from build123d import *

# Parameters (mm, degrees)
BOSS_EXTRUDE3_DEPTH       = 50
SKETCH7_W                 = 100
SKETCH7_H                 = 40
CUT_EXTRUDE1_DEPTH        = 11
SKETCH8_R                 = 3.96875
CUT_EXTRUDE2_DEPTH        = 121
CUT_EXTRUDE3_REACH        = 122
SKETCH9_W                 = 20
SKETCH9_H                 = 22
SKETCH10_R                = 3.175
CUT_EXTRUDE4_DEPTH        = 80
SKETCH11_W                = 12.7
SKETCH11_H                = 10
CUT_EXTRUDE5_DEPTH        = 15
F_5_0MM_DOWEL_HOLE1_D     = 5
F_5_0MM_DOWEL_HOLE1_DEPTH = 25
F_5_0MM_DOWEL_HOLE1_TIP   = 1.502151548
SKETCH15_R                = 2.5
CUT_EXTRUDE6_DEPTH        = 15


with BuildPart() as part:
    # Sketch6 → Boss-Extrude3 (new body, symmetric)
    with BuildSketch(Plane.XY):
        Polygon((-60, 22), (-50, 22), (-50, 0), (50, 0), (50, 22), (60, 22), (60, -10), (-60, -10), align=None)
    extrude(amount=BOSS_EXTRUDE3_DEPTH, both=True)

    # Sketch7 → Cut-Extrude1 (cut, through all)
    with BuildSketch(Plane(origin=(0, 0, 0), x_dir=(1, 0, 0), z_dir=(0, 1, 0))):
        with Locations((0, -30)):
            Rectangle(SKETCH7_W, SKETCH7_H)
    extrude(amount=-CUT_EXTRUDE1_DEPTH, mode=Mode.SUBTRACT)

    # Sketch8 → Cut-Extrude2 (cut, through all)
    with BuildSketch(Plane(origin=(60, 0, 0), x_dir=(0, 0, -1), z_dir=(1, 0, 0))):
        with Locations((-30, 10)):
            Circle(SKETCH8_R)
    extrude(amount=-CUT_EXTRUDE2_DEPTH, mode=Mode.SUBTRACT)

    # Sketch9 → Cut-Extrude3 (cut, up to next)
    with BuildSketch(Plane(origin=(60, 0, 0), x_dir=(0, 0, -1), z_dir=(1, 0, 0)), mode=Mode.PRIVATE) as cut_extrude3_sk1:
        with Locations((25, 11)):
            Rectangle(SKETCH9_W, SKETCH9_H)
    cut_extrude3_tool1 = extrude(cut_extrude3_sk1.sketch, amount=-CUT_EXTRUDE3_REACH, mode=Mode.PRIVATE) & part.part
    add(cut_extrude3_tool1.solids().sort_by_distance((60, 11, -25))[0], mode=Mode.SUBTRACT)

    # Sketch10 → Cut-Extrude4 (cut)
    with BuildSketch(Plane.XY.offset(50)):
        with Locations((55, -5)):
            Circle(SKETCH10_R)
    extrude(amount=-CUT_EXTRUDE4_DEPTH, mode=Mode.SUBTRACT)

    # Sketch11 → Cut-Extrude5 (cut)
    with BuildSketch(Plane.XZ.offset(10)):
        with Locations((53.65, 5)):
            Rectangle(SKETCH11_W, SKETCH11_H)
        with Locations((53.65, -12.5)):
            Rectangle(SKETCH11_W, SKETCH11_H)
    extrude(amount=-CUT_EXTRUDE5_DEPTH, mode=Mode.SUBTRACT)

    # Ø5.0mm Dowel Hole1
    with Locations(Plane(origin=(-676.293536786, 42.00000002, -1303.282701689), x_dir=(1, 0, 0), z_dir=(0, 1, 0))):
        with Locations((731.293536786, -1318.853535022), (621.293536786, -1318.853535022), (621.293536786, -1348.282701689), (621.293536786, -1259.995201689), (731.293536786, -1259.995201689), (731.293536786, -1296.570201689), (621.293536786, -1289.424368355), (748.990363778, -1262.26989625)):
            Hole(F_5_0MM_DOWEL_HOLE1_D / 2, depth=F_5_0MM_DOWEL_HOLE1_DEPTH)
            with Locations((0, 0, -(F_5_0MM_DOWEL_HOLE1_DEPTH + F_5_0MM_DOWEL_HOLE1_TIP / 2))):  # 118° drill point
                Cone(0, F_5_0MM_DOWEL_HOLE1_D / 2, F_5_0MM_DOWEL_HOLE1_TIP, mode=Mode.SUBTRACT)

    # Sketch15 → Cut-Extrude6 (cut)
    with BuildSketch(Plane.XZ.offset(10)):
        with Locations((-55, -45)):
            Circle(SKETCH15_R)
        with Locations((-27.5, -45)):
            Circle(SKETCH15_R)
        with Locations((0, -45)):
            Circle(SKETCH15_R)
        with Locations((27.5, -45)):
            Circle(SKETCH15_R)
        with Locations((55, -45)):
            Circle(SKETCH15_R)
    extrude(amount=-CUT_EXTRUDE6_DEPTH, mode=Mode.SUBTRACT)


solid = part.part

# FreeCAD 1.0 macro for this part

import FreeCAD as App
import Part
import Sketcher
from FreeCAD import Vector

doc = App.newDocument("Part")
params = doc.addObject("Spreadsheet::Sheet", "Params")
for row, (alias, value) in enumerate([
    ("sketch1_width", "10 mm"),
    ("sketch1_width2", "120 mm"),
    ("sketch1_height", "32 mm"),
    ("sketch1_height2", "22 mm"),
    ("pad1_length", "100 mm"),
    ("sketch2_width", "100 mm"),
    ("sketch2_height", "40 mm"),
    ("sketch4_width", "22 mm"),
    ("sketch4_height", "20 mm"),
    ("sketch5_diameter", "6.35 mm"),
    ("pocket4_length", "80 mm"),
    ("sketch6_height", "10 mm"),
    ("sketch6_width", "12.7 mm"),
    ("pocket5_length", "15 mm"),
    ("sketch7_diameter", "5 mm"),
    ("hole_diameter", "5 mm"),
    ("hole_depth", "25 mm"),
    ("sketch8_diameter", "5 mm"),
    ("pocket6_length", "15 mm"),
], start=1):
    params.set(f"A{row}", alias)
    params.set(f"B{row}", "=" + value)
    params.setAlias(f"B{row}", alias)

body = doc.addObject("PartDesign::Body", "Body")

sketch1 = doc.addObject("Sketcher::SketchObject", "Sketch")
body.addObject(sketch1)
sketch1.AttachmentSupport = (doc.XY_Plane, [""])
sketch1.MapMode = "FlatFace"
sketch1.addGeometry(Part.LineSegment(Vector(-50, 22, 0), Vector(-60, 22, 0)), False)
sketch1.addGeometry(Part.LineSegment(Vector(-60, 22, 0), Vector(-60, -10, 0)), False)
sketch1.addGeometry(Part.LineSegment(Vector(-60, -10, 0), Vector(60, -10, 0)), False)
sketch1.addGeometry(Part.LineSegment(Vector(60, -10, 0), Vector(60, 22, 0)), False)
sketch1.addGeometry(Part.LineSegment(Vector(60, 22, 0), Vector(50, 22, 0)), False)
sketch1.addGeometry(Part.LineSegment(Vector(50, 22, 0), Vector(50, 0, 0)), False)
sketch1.addGeometry(Part.LineSegment(Vector(50, 0, 0), Vector(-50, 0, 0)), False)
sketch1.addGeometry(Part.LineSegment(Vector(-50, 0, 0), Vector(-50, 22, 0)), False)
sketch1.addConstraint(Sketcher.Constraint("Coincident", 0, 2, 1, 1))
sketch1.addConstraint(Sketcher.Constraint("Coincident", 1, 2, 2, 1))
sketch1.addConstraint(Sketcher.Constraint("Coincident", 2, 2, 3, 1))
sketch1.addConstraint(Sketcher.Constraint("Coincident", 3, 2, 4, 1))
sketch1.addConstraint(Sketcher.Constraint("Coincident", 4, 2, 5, 1))
sketch1.addConstraint(Sketcher.Constraint("Coincident", 5, 2, 6, 1))
sketch1.addConstraint(Sketcher.Constraint("Coincident", 6, 2, 7, 1))
sketch1.addConstraint(Sketcher.Constraint("Coincident", 7, 2, 0, 1))
sketch1.addConstraint(Sketcher.Constraint("Horizontal", 0))
sketch1.addConstraint(Sketcher.Constraint("Vertical", 1))
sketch1.addConstraint(Sketcher.Constraint("Horizontal", 2))
sketch1.addConstraint(Sketcher.Constraint("Vertical", 3))
sketch1.addConstraint(Sketcher.Constraint("Horizontal", 4))
sketch1.addConstraint(Sketcher.Constraint("Vertical", 5))
sketch1.addConstraint(Sketcher.Constraint("Horizontal", 6))
sketch1.addConstraint(Sketcher.Constraint("Vertical", 7))
sketch1.addConstraint(Sketcher.Constraint("Symmetric", 5, 2, 6, 2, -1, 1))
sketch1.addConstraint(Sketcher.Constraint("Symmetric", 0, 2, 3, 2, -2))
sketch1.addConstraint(Sketcher.Constraint("DistanceX", 0, 2, 0, 1, 10.0))
sketch1.addConstraint(Sketcher.Constraint("DistanceX", 2, 1, 2, 2, 120.0))
sketch1.addConstraint(Sketcher.Constraint("DistanceY", 1, 2, 1, 1, 32.0))
sketch1.addConstraint(Sketcher.Constraint("DistanceY", 5, 2, 5, 1, 22.0))
sketch1.setExpression("Constraints[18]", "Params.sketch1_width")
sketch1.setExpression("Constraints[19]", "Params.sketch1_width2")
sketch1.setExpression("Constraints[20]", "Params.sketch1_height")
sketch1.setExpression("Constraints[21]", "Params.sketch1_height2")
pad1 = doc.addObject("PartDesign::Pad", "Pad")
body.addObject(pad1)
pad1.Profile = sketch1
pad1.setExpression("Length", "Params.pad1_length")
pad1.Midplane = True

sketch2 = doc.addObject("Sketcher::SketchObject", "Sketch001")
body.addObject(sketch2)
sketch2.AttachmentSupport = (doc.XZ_Plane, [""])
sketch2.MapMode = "FlatFace"
sketch2.addGeometry(Part.LineSegment(Vector(-50, 10, 0), Vector(-50, 50, 0)), False)
sketch2.addGeometry(Part.LineSegment(Vector(-50, 50, 0), Vector(50, 50, 0)), False)
sketch2.addGeometry(Part.LineSegment(Vector(50, 50, 0), Vector(50, 10, 0)), False)
sketch2.addGeometry(Part.LineSegment(Vector(50, 10, 0), Vector(-50, 10, 0)), False)
sketch2.addConstraint(Sketcher.Constraint("Coincident", 0, 2, 1, 1))
sketch2.addConstraint(Sketcher.Constraint("Coincident", 1, 2, 2, 1))
sketch2.addConstraint(Sketcher.Constraint("Coincident", 2, 2, 3, 1))
sketch2.addConstraint(Sketcher.Constraint("Coincident", 3, 2, 0, 1))
sketch2.addConstraint(Sketcher.Constraint("Vertical", 0))
sketch2.addConstraint(Sketcher.Constraint("Horizontal", 1))
sketch2.addConstraint(Sketcher.Constraint("Vertical", 2))
sketch2.addConstraint(Sketcher.Constraint("Horizontal", 3))
sketch2.addConstraint(Sketcher.Constraint("DistanceX", 1, 1, 1, 2, 100.0))
sketch2.addConstraint(Sketcher.Constraint("DistanceY", 0, 1, 0, 2, 40.0))
sketch2.addConstraint(Sketcher.Constraint("DistanceX", 0, 2, -1, 1, 50.0))
sketch2.addConstraint(Sketcher.Constraint("DistanceY", -1, 1, 0, 2, 50.0))
sketch2.setExpression("Constraints[8]", "Params.sketch2_width")
sketch2.setExpression("Constraints[9]", "Params.sketch2_height")
pocket1 = doc.addObject("PartDesign::Pocket", "Pocket")
body.addObject(pocket1)
pocket1.Profile = sketch2
pocket1.Type = "ThroughAll"
pocket1.Reversed = True

sketch3 = doc.addObject("Sketcher::SketchObject", "Sketch002")
body.addObject(sketch3)
sketch3.AttachmentSupport = (doc.YZ_Plane, [""])
sketch3.MapMode = "FlatFace"
sketch3.AttachmentOffset = App.Placement(Vector(0, 0, 60), App.Rotation())
sketch3.addGeometry(Part.Circle(Vector(10, 30, 0), Vector(0, 0, 1), 4), False)
sketch3.addConstraint(Sketcher.Constraint("DistanceX", -1, 1, 0, 3, 10.0))
sketch3.addConstraint(Sketcher.Constraint("DistanceY", -1, 1, 0, 3, 30.0))
sketch3.addConstraint(Sketcher.Constraint("Diameter", 0, 7.9375))
pocket2 = doc.addObject("PartDesign::Pocket", "Pocket001")
body.addObject(pocket2)
pocket2.Profile = sketch3
pocket2.Type = "ThroughAll"

sketch4 = doc.addObject("Sketcher::SketchObject", "Sketch003")
body.addObject(sketch4)
sketch4.AttachmentSupport = (doc.YZ_Plane, [""])
sketch4.MapMode = "FlatFace"
sketch4.AttachmentOffset = App.Placement(Vector(0, 0, 60), App.Rotation())
sketch4.addGeometry(Part.LineSegment(Vector(22, -15, 0), Vector(0, -15, 0)), False)
sketch4.addGeometry(Part.LineSegment(Vector(0, -15, 0), Vector(0, -35, 0)), False)
sketch4.addGeometry(Part.LineSegment(Vector(0, -35, 0), Vector(22, -35, 0)), False)
sketch4.addGeometry(Part.LineSegment(Vector(22, -35, 0), Vector(22, -15, 0)), False)
sketch4.addConstraint(Sketcher.Constraint("Coincident", 0, 2, 1, 1))
sketch4.addConstraint(Sketcher.Constraint("Coincident", 1, 2, 2, 1))
sketch4.addConstraint(Sketcher.Constraint("Coincident", 2, 2, 3, 1))
sketch4.addConstraint(Sketcher.Constraint("Coincident", 3, 2, 0, 1))
sketch4.addConstraint(Sketcher.Constraint("Horizontal", 0))
sketch4.addConstraint(Sketcher.Constraint("Vertical", 1))
sketch4.addConstraint(Sketcher.Constraint("Horizontal", 2))
sketch4.addConstraint(Sketcher.Constraint("Vertical", 3))
sketch4.addConstraint(Sketcher.Constraint("PointOnObject", 0, 2, -2))
sketch4.addConstraint(Sketcher.Constraint("DistanceX", 0, 2, 0, 1, 22.0))
sketch4.addConstraint(Sketcher.Constraint("DistanceY", 1, 2, 1, 1, 20.0))
sketch4.addConstraint(Sketcher.Constraint("DistanceY", 0, 2, -1, 1, 15.0))
sketch4.setExpression("Constraints[9]", "Params.sketch4_width")
sketch4.setExpression("Constraints[10]", "Params.sketch4_height")
pocket3 = doc.addObject("PartDesign::Pocket", "Pocket002")
body.addObject(pocket3)
pocket3.Profile = sketch4
pocket3.Type = "UpToFirst"

sketch5 = doc.addObject("Sketcher::SketchObject", "Sketch004")
body.addObject(sketch5)
sketch5.AttachmentSupport = (doc.XY_Plane, [""])
sketch5.MapMode = "FlatFace"
sketch5.AttachmentOffset = App.Placement(Vector(0, 0, 50), App.Rotation())
sketch5.addGeometry(Part.Circle(Vector(55, -5, 0), Vector(0, 0, 1), 3.2), False)
sketch5.addConstraint(Sketcher.Constraint("Diameter", 0, 6.35))
sketch5.addConstraint(Sketcher.Constraint("DistanceX", -1, 1, 0, 3, 55.0))
sketch5.addConstraint(Sketcher.Constraint("DistanceY", 0, 3, -1, 1, 5.0))
sketch5.setExpression("Constraints[0]", "Params.sketch5_diameter")
pocket4 = doc.addObject("PartDesign::Pocket", "Pocket003")
body.addObject(pocket4)
pocket4.Profile = sketch5
pocket4.setExpression("Length", "Params.pocket4_length")

sketch6 = doc.addObject("Sketcher::SketchObject", "Sketch005")
body.addObject(sketch6)
sketch6.AttachmentSupport = (doc.XZ_Plane, [""])
sketch6.MapMode = "FlatFace"
sketch6.AttachmentOffset = App.Placement(Vector(0, 0, 10), App.Rotation())
sketch6.addGeometry(Part.LineSegment(Vector(47, 10, 0), Vector(47, 0, 0)), False)
sketch6.addGeometry(Part.LineSegment(Vector(47, 0, 0), Vector(60, 0, 0)), False)
sketch6.addGeometry(Part.LineSegment(Vector(60, 0, 0), Vector(60, 10, 0)), False)
sketch6.addGeometry(Part.LineSegment(Vector(60, 10, 0), Vector(47, 10, 0)), False)
sketch6.addGeometry(Part.LineSegment(Vector(47, -8, 0), Vector(47, -18, 0)), False)
sketch6.addGeometry(Part.LineSegment(Vector(47, -18, 0), Vector(60, -18, 0)), False)
sketch6.addGeometry(Part.LineSegment(Vector(60, -18, 0), Vector(60, -8, 0)), False)
sketch6.addGeometry(Part.LineSegment(Vector(60, -8, 0), Vector(47, -8, 0)), False)
sketch6.addConstraint(Sketcher.Constraint("Coincident", 0, 2, 1, 1))
sketch6.addConstraint(Sketcher.Constraint("Coincident", 1, 2, 2, 1))
sketch6.addConstraint(Sketcher.Constraint("Coincident", 2, 2, 3, 1))
sketch6.addConstraint(Sketcher.Constraint("Coincident", 3, 2, 0, 1))
sketch6.addConstraint(Sketcher.Constraint("Coincident", 4, 2, 5, 1))
sketch6.addConstraint(Sketcher.Constraint("Coincident", 5, 2, 6, 1))
sketch6.addConstraint(Sketcher.Constraint("Coincident", 6, 2, 7, 1))
sketch6.addConstraint(Sketcher.Constraint("Coincident", 7, 2, 4, 1))
sketch6.addConstraint(Sketcher.Constraint("Vertical", 0))
sketch6.addConstraint(Sketcher.Constraint("Horizontal", 1))
sketch6.addConstraint(Sketcher.Constraint("Vertical", 2))
sketch6.addConstraint(Sketcher.Constraint("Horizontal", 3))
sketch6.addConstraint(Sketcher.Constraint("Vertical", 4))
sketch6.addConstraint(Sketcher.Constraint("Horizontal", 5))
sketch6.addConstraint(Sketcher.Constraint("Vertical", 6))
sketch6.addConstraint(Sketcher.Constraint("Horizontal", 7))
sketch6.addConstraint(Sketcher.Constraint("PointOnObject", 0, 2, -1))
sketch6.addConstraint(Sketcher.Constraint("Vertical", 3, 2, 4, 2))
sketch6.addConstraint(Sketcher.Constraint("Vertical", 2, 2, 5, 2))
sketch6.addConstraint(Sketcher.Constraint("Equal", 2, 4))
sketch6.addConstraint(Sketcher.Constraint("DistanceY", 0, 2, 0, 1, 10.0))
sketch6.addConstraint(Sketcher.Constraint("DistanceX", 1, 1, 1, 2, 12.7))
sketch6.addConstraint(Sketcher.Constraint("DistanceX", -1, 1, 1, 2, 60.0))
sketch6.addConstraint(Sketcher.Constraint("DistanceY", 4, 2, -1, 1, 17.5))
sketch6.setExpression("Constraints[20]", "Params.sketch6_height")
sketch6.setExpression("Constraints[21]", "Params.sketch6_width")
pocket5 = doc.addObject("PartDesign::Pocket", "Pocket004")
body.addObject(pocket5)
pocket5.Profile = sketch6
pocket5.setExpression("Length", "Params.pocket5_length")

sketch7 = doc.addObject("Sketcher::SketchObject", "Sketch006")
body.addObject(sketch7)
sketch7.AttachmentSupport = (doc.XZ_Plane, [""])
sketch7.MapMode = "FlatFace"
sketch7.AttachmentOffset = App.Placement(Vector(0, 0, -42), App.Rotation())
sketch7.addGeometry(Part.Circle(Vector(55, 15.6, 0), Vector(0, 0, 1), 2.5), False)
sketch7.addGeometry(Part.Circle(Vector(-55, 15.6, 0), Vector(0, 0, 1), 2.5), False)
sketch7.addGeometry(Part.Circle(Vector(-55, 45, 0), Vector(0, 0, 1), 2.5), False)
sketch7.addGeometry(Part.Circle(Vector(-55, -43.3, 0), Vector(0, 0, 1), 2.5), False)
sketch7.addGeometry(Part.Circle(Vector(55, -43.3, 0), Vector(0, 0, 1), 2.5), False)
sketch7.addGeometry(Part.Circle(Vector(55, -6.7, 0), Vector(0, 0, 1), 2.5), False)
sketch7.addGeometry(Part.Circle(Vector(-55, -13.9, 0), Vector(0, 0, 1), 2.5), False)
sketch7.addGeometry(Part.Circle(Vector(72.7, -41, 0), Vector(0, 0, 1), 2.5), False)
sketch7.addConstraint(Sketcher.Constraint("Equal", 0, 1))
sketch7.addConstraint(Sketcher.Constraint("Equal", 1, 2))
sketch7.addConstraint(Sketcher.Constraint("Equal", 2, 3))
sketch7.addConstraint(Sketcher.Constraint("Equal", 3, 4))
sketch7.addConstraint(Sketcher.Constraint("Equal", 4, 5))
sketch7.addConstraint(Sketcher.Constraint("Equal", 5, 6))
sketch7.addConstraint(Sketcher.Constraint("Equal", 6, 7))
sketch7.addConstraint(Sketcher.Constraint("Symmetric", 0, 3, 1, 3, -2))
sketch7.addConstraint(Sketcher.Constraint("Symmetric", 3, 3, 4, 3, -2))
sketch7.addConstraint(Sketcher.Constraint("Vertical", 1, 3, 2, 3))
sketch7.addConstraint(Sketcher.Constraint("Vertical", 2, 3, 3, 3))
sketch7.addConstraint(Sketcher.Constraint("Vertical", 4, 3, 5, 3))
sketch7.addConstraint(Sketcher.Constraint("Vertical", 3, 3, 6, 3))
sketch7.addConstraint(Sketcher.Constraint("Diameter", 0, 5.0))
sketch7.addConstraint(Sketcher.Constraint("DistanceX", -1, 1, 0, 3, 55.0))
sketch7.addConstraint(Sketcher.Constraint("DistanceY", -1, 1, 2, 3, 45.0))
sketch7.addConstraint(Sketcher.Constraint("DistanceY", 4, 3, 5, 3, 36.575))
sketch7.addConstraint(Sketcher.Constraint("DistanceY", 3, 3, -1, 1, 43.2875))
sketch7.addConstraint(Sketcher.Constraint("DistanceY", 7, 3, 0, 3, 56.583639))
sketch7.addConstraint(Sketcher.Constraint("DistanceY", -1, 1, 0, 3, 15.570833))
sketch7.addConstraint(Sketcher.Constraint("DistanceY", 6, 3, -1, 1, 13.858333))
sketch7.addConstraint(Sketcher.Constraint("DistanceX", -1, 1, 7, 3, 72.696827))
sketch7.setExpression("Constraints[13]", "Params.sketch7_diameter")
doc.recompute()
hole = doc.addObject("PartDesign::Hole", "Hole")
body.addObject(hole)
hole.Profile = sketch7
hole.ThreadType = "None"
hole.setExpression("Diameter", "Params.hole_diameter")
hole.DepthType = "Dimension"
hole.setExpression("Depth", "Params.hole_depth")
hole.DrillPoint = "Angled"
hole.DrillPointAngle = 118
hole.Reversed = True

sketch8 = doc.addObject("Sketcher::SketchObject", "Sketch007")
body.addObject(sketch8)
sketch8.AttachmentSupport = (doc.XZ_Plane, [""])
sketch8.MapMode = "FlatFace"
sketch8.AttachmentOffset = App.Placement(Vector(0, 0, 10), App.Rotation())
sketch8.addGeometry(Part.Circle(Vector(-55, -45, 0), Vector(0, 0, 1), 2.5), False)
sketch8.addGeometry(Part.Circle(Vector(-27.5, -45, 0), Vector(0, 0, 1), 2.5), False)
sketch8.addGeometry(Part.Circle(Vector(0, -45, 0), Vector(0, 0, 1), 2.5), False)
sketch8.addGeometry(Part.Circle(Vector(27.5, -45, 0), Vector(0, 0, 1), 2.5), False)
sketch8.addGeometry(Part.Circle(Vector(55, -45, 0), Vector(0, 0, 1), 2.5), False)
sketch8.addConstraint(Sketcher.Constraint("Equal", 0, 1))
sketch8.addConstraint(Sketcher.Constraint("Equal", 1, 2))
sketch8.addConstraint(Sketcher.Constraint("Equal", 2, 3))
sketch8.addConstraint(Sketcher.Constraint("Equal", 3, 4))
sketch8.addConstraint(Sketcher.Constraint("Symmetric", 1, 3, 3, 3, -2))
sketch8.addConstraint(Sketcher.Constraint("Symmetric", 0, 3, 4, 3, -2))
sketch8.addConstraint(Sketcher.Constraint("PointOnObject", 2, 3, -2))
sketch8.addConstraint(Sketcher.Constraint("Horizontal", 0, 3, 1, 3))
sketch8.addConstraint(Sketcher.Constraint("Horizontal", 1, 3, 2, 3))
sketch8.addConstraint(Sketcher.Constraint("Diameter", 0, 5.0))
sketch8.addConstraint(Sketcher.Constraint("DistanceX", 0, 3, -1, 1, 55.0))
sketch8.addConstraint(Sketcher.Constraint("DistanceY", 0, 3, -1, 1, 45.0))
sketch8.addConstraint(Sketcher.Constraint("DistanceX", 1, 3, 3, 3, 55.0))
sketch8.setExpression("Constraints[9]", "Params.sketch8_diameter")
pocket6 = doc.addObject("PartDesign::Pocket", "Pocket005")
body.addObject(pocket6)
pocket6.Profile = sketch8
pocket6.setExpression("Length", "Params.pocket6_length")

doc.recompute()
